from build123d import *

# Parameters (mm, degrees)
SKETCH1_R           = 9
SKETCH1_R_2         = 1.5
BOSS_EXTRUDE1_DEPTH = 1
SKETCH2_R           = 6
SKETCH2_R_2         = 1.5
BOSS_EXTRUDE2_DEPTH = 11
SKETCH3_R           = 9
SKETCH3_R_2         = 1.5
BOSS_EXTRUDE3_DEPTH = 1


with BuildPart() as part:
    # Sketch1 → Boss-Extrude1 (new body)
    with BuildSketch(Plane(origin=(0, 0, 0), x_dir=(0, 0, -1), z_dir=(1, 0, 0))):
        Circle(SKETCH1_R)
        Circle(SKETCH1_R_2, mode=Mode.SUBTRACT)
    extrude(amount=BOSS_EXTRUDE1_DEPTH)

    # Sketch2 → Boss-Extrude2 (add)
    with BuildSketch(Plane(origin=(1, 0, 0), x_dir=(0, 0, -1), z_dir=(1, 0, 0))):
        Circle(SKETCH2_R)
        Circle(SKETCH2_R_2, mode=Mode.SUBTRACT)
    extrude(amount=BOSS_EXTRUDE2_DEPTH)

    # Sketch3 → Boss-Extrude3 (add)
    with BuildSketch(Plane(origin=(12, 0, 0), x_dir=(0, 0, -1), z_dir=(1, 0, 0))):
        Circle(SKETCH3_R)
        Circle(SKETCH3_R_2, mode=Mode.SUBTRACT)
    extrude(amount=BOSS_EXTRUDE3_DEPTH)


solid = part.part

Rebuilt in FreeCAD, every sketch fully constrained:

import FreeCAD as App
import Part
import Sketcher
Q = App.Units.Quantity

doc = App.newDocument("Part")
body = doc.addObject("PartDesign::Body", "Body")

sketch1 = body.newObject("Sketcher::SketchObject", "Sketch")
sketch1.AttachmentSupport = (doc.getObject("YZ_Plane"), [""])
sketch1.MapMode = "FlatFace"
sketch1.addGeometry(Part.Circle(App.Vector(0, 0, 0), App.Vector(0, 0, 1), 9), False)
sketch1.addGeometry(Part.Circle(App.Vector(0, 0, 0), App.Vector(0, 0, 1), 1.5), False)
sketch1.addConstraint(Sketcher.Constraint("Coincident", 0, 3, -1, 1))
sketch1.addConstraint(Sketcher.Constraint("Coincident", 1, 3, -1, 1))
sketch1.addConstraint(Sketcher.Constraint("Diameter", 0, Q("18 mm")))
sketch1.addConstraint(Sketcher.Constraint("Diameter", 1, Q("3 mm")))
pad1 = body.newObject("PartDesign::Pad", "Pad")
pad1.Profile = sketch1
pad1.Length = 1

sketch2 = body.newObject("Sketcher::SketchObject", "Sketch001")
sketch2.AttachmentSupport = (doc.getObject("YZ_Plane"), [""])
sketch2.MapMode = "FlatFace"
sketch2.AttachmentOffset = App.Placement(App.Vector(0, 0, 1), App.Rotation())
sketch2.addGeometry(Part.Circle(App.Vector(0, 0, 0), App.Vector(0, 0, 1), 6), False)
sketch2.addGeometry(Part.Circle(App.Vector(0, 0, 0), App.Vector(0, 0, 1), 1.5), False)
sketch2.addConstraint(Sketcher.Constraint("Coincident", 0, 3, -1, 1))
sketch2.addConstraint(Sketcher.Constraint("Coincident", 1, 3, -1, 1))
sketch2.addConstraint(Sketcher.Constraint("Diameter", 0, Q("12 mm")))
sketch2.addConstraint(Sketcher.Constraint("Diameter", 1, Q("3 mm")))
pad2 = body.newObject("PartDesign::Pad", "Pad001")
pad2.Profile = sketch2
pad2.Length = 11

sketch3 = body.newObject("Sketcher::SketchObject", "Sketch002")
sketch3.AttachmentSupport = (doc.getObject("YZ_Plane"), [""])
sketch3.MapMode = "FlatFace"
sketch3.AttachmentOffset = App.Placement(App.Vector(0, 0, 12), App.Rotation())
sketch3.addGeometry(Part.Circle(App.Vector(0, 0, 0), App.Vector(0, 0, 1), 9), False)
sketch3.addGeometry(Part.Circle(App.Vector(0, 0, 0), App.Vector(0, 0, 1), 1.5), False)
sketch3.addConstraint(Sketcher.Constraint("Coincident", 0, 3, -1, 1))
sketch3.addConstraint(Sketcher.Constraint("Coincident", 1, 3, -1, 1))
sketch3.addConstraint(Sketcher.Constraint("Diameter", 0, Q("18 mm")))
sketch3.addConstraint(Sketcher.Constraint("Diameter", 1, Q("3 mm")))
pad3 = body.newObject("PartDesign::Pad", "Pad002")
pad3.Profile = sketch3
pad3.Length = 1

doc.recompute()
